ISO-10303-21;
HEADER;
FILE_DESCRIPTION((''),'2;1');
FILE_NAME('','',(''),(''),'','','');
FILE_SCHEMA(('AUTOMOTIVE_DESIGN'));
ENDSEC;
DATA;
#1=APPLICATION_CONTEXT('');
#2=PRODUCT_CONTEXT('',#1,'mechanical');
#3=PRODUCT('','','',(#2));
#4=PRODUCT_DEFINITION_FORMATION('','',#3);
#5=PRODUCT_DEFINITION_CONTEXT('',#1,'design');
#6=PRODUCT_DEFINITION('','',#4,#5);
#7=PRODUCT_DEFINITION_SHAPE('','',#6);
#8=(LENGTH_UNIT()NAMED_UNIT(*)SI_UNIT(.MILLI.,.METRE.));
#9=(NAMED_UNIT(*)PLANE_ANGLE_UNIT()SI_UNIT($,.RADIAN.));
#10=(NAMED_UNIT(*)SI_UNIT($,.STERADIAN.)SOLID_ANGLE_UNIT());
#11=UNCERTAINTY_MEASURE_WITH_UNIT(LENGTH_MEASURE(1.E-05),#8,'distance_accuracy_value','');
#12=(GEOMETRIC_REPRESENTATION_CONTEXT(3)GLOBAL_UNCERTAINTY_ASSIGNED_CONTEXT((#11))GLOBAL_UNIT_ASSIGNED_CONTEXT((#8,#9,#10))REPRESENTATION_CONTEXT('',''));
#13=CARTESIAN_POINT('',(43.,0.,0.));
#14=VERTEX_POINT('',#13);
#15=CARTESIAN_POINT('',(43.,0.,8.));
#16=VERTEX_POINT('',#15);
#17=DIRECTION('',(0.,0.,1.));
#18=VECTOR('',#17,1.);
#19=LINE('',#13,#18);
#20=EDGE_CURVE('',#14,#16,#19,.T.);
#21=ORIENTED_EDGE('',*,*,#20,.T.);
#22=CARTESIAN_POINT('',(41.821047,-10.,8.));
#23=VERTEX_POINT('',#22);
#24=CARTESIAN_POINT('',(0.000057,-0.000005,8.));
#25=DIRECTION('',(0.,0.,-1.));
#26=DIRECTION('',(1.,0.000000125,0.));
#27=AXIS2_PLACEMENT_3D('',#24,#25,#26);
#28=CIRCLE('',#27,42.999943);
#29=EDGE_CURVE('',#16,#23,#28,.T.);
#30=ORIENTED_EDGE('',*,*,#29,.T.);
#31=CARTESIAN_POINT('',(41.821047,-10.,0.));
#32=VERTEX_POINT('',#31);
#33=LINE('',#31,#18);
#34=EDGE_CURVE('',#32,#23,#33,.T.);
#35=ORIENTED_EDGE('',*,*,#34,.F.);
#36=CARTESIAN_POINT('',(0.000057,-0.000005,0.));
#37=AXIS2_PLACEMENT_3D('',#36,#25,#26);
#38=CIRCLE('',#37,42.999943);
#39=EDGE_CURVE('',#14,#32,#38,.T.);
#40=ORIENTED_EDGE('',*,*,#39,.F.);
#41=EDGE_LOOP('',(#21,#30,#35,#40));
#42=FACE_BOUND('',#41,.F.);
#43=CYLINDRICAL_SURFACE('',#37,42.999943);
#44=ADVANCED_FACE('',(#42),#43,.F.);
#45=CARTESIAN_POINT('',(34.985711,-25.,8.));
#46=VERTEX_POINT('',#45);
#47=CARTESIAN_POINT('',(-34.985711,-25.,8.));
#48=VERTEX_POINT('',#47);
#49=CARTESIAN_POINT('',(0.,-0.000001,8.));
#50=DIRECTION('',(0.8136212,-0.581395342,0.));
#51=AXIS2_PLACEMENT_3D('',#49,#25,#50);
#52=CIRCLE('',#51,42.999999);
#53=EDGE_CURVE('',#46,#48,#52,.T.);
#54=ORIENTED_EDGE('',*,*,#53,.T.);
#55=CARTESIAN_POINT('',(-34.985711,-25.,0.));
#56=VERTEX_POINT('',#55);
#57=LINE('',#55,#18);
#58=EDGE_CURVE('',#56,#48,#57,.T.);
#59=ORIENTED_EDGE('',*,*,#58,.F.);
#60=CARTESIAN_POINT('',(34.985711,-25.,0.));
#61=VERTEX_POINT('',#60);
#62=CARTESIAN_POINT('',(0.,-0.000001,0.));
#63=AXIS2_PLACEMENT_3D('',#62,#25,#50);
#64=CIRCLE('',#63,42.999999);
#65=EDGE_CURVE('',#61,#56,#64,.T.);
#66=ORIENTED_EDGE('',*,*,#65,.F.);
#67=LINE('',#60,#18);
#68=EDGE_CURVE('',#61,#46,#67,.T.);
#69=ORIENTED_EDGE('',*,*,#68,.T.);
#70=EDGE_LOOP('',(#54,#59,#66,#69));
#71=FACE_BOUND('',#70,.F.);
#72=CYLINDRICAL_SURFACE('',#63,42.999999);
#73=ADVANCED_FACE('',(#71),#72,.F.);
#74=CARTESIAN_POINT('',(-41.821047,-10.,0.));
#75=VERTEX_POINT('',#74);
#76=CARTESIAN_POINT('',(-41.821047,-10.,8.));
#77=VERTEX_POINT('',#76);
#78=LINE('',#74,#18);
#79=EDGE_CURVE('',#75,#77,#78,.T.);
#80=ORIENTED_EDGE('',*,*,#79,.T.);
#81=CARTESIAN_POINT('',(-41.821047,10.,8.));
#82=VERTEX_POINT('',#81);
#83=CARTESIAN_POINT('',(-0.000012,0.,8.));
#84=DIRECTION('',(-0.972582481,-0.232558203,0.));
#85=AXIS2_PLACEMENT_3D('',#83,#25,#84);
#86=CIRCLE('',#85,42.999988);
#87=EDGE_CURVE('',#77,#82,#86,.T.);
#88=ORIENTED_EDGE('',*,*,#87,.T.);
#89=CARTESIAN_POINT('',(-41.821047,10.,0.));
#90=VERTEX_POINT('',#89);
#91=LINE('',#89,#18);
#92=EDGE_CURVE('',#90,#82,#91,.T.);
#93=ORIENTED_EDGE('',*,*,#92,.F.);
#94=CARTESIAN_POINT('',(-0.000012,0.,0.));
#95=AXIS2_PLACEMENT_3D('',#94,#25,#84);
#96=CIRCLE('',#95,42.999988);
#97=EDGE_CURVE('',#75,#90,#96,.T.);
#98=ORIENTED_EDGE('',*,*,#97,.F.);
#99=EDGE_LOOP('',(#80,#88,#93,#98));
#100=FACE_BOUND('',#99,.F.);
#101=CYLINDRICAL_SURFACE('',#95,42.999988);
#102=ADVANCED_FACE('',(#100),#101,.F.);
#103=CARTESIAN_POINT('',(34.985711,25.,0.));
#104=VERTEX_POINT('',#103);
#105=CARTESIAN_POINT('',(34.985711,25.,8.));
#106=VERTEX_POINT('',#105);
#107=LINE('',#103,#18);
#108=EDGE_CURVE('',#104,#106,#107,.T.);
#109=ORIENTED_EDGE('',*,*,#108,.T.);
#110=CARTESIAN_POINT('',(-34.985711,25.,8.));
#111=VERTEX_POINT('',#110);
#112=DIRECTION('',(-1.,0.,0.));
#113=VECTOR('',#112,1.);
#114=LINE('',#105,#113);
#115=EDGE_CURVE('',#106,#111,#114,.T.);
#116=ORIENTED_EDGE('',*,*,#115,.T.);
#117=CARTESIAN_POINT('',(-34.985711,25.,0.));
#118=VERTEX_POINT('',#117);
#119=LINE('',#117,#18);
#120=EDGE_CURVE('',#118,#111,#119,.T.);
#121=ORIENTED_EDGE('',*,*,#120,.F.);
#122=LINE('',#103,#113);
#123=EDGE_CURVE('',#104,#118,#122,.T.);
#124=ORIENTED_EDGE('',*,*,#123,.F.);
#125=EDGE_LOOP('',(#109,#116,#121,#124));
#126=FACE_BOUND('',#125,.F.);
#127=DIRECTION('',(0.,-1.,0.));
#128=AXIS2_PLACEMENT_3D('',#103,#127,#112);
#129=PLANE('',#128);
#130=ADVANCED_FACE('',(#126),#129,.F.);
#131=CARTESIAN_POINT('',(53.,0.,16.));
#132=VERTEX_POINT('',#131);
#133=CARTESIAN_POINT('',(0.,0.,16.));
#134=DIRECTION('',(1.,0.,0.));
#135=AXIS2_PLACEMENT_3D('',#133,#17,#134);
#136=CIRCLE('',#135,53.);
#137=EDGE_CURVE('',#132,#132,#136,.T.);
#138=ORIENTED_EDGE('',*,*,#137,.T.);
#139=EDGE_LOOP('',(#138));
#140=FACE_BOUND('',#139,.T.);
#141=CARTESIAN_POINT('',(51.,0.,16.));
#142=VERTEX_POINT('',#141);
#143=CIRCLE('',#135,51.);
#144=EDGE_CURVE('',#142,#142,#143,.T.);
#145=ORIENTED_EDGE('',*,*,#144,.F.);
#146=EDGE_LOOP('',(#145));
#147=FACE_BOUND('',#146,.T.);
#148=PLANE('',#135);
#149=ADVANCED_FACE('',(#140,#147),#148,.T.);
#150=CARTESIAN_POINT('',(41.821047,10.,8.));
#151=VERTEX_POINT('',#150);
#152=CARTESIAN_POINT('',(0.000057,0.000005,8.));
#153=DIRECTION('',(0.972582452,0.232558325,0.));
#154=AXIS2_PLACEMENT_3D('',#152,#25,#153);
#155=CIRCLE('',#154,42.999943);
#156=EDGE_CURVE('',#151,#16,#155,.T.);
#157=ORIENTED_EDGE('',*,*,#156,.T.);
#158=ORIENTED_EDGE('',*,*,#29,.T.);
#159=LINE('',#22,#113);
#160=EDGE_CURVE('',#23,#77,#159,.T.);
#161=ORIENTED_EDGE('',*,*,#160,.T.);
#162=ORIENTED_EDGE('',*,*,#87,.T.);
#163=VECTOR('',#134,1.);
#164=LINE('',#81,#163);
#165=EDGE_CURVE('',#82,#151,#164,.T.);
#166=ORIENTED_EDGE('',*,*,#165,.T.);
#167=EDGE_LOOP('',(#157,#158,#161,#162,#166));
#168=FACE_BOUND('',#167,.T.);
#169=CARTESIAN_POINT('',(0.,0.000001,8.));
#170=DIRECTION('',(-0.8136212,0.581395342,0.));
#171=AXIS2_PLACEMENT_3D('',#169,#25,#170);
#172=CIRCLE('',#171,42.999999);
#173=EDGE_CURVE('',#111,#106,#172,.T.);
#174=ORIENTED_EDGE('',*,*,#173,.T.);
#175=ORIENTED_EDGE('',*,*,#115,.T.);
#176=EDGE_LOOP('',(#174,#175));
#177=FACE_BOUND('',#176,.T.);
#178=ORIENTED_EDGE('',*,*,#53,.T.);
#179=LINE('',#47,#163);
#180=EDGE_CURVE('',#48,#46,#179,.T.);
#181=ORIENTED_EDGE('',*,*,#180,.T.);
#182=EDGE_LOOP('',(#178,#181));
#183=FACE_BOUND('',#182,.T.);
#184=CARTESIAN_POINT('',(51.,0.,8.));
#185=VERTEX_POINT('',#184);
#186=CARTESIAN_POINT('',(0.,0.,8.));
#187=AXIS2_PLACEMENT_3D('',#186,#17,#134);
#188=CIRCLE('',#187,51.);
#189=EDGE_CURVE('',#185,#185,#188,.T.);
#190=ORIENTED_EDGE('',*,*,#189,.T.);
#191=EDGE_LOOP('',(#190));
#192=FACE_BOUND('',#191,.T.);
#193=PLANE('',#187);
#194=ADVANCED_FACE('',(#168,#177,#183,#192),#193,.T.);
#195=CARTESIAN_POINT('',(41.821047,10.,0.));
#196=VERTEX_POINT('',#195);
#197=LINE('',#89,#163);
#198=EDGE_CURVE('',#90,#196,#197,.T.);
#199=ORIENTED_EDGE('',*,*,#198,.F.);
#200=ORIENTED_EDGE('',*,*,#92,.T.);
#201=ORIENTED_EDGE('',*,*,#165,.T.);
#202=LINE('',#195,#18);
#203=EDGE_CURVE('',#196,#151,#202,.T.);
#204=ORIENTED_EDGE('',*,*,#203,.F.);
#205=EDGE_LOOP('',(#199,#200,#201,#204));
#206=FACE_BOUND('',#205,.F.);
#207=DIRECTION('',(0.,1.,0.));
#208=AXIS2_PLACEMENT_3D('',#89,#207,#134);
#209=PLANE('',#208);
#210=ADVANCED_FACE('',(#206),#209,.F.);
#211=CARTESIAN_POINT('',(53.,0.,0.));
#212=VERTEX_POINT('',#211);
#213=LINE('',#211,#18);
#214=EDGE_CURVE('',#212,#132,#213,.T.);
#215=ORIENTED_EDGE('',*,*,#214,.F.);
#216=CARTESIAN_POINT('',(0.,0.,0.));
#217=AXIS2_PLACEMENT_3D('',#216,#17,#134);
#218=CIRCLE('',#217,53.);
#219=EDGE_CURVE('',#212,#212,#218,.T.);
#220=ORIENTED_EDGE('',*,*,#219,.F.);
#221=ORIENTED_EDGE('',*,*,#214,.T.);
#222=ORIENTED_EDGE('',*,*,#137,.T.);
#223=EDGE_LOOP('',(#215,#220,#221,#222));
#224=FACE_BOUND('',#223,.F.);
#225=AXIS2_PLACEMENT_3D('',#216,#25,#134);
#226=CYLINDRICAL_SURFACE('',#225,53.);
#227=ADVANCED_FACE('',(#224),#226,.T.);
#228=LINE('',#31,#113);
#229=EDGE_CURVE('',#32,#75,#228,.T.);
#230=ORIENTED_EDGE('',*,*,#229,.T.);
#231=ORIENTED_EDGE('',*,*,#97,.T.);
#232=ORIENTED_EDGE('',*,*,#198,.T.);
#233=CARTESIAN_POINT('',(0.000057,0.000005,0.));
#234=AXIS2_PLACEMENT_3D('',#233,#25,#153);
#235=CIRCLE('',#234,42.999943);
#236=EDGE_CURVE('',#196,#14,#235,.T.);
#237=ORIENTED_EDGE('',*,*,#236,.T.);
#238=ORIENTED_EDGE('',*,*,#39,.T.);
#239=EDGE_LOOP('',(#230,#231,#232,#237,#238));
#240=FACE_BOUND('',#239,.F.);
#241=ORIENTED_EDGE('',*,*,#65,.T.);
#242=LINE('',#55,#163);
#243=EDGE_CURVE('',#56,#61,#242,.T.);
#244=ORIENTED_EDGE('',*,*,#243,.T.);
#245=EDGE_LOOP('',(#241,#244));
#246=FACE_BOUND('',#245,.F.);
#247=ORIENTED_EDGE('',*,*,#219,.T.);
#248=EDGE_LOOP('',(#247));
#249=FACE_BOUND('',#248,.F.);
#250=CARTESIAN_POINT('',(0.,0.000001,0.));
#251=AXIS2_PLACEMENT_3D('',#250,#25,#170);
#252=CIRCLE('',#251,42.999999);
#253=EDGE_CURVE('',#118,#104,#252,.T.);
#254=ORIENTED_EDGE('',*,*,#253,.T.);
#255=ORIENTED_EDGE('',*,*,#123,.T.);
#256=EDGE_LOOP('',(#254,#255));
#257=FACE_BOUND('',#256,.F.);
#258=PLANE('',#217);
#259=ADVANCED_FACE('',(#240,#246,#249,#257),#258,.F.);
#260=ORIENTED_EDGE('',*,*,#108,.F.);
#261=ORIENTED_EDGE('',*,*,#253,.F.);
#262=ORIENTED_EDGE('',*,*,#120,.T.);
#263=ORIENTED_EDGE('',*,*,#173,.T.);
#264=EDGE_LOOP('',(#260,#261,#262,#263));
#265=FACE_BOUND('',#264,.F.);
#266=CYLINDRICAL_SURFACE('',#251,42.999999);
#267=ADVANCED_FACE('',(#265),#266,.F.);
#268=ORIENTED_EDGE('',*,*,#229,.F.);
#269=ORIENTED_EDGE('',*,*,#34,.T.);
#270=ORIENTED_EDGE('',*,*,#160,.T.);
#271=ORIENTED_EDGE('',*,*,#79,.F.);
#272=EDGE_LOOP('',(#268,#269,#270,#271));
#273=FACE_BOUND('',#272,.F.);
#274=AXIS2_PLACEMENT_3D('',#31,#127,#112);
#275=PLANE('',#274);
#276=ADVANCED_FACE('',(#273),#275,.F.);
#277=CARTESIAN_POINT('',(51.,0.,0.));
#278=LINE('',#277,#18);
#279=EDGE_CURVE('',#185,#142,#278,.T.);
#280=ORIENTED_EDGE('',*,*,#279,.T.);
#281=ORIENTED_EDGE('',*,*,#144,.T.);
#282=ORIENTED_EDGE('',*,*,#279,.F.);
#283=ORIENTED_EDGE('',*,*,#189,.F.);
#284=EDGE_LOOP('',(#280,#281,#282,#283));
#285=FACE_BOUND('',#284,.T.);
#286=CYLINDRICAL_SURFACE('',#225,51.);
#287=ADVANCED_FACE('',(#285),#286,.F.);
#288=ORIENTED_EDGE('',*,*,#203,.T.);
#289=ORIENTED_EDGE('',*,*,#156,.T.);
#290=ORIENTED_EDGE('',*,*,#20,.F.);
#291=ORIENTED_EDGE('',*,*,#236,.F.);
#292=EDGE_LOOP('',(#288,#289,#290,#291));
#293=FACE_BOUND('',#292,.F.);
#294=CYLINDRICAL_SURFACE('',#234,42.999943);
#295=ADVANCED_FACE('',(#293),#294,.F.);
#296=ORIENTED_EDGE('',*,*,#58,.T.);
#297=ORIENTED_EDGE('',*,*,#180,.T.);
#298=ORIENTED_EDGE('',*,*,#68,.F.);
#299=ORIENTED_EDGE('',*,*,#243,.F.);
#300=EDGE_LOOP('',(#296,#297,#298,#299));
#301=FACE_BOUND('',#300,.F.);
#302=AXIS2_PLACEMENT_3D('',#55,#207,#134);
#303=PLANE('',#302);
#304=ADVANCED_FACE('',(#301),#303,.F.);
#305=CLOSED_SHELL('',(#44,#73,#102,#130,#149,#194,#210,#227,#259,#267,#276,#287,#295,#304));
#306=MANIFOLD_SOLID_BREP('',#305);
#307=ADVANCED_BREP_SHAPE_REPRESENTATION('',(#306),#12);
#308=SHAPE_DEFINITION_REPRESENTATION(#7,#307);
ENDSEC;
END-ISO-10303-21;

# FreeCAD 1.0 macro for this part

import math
import FreeCAD as App
import Part
import Sketcher

doc = App.newDocument("Part")
body = doc.addObject("PartDesign::Body", "Body")

sketch1 = doc.addObject("Sketcher::SketchObject", "Sketch")
body.addObject(sketch1)
sketch1.AttachmentSupport = (doc.XY_Plane, [""])
sketch1.MapMode = "FlatFace"
sketch1.addGeometry([
    Part.Circle(App.Vector(0, 0, 0), App.Vector(0, 0, 1), 51),
    Part.ArcOfCircle(Part.Circle(App.Vector(0, 0.000001, 0), App.Vector(0, 0, 1), 42.999999), math.radians(35.548744), math.radians(144.451256)),
    Part.LineSegment(App.Vector(34.985711, 25, 0), App.Vector(-34.985711, 25, 0)),
    Part.ArcOfCircle(Part.Circle(App.Vector(-0.000012, 0, 0), App.Vector(0, 0, 1), 42.999988), math.radians(166.552269), math.radians(193.447731)),
    Part.LineSegment(App.Vector(-41.821047, 10, 0), App.Vector(41.821047, 10, 0)),
    Part.ArcOfCircle(Part.Circle(App.Vector(0.000057, 0.000005, 0), App.Vector(0, 0, 1), 42.999943), math.radians(-0.000007), math.radians(13.447738)),
    Part.ArcOfCircle(Part.Circle(App.Vector(0.000057, -0.000005, 0), App.Vector(0, 0, 1), 42.999943), math.radians(-13.447738), math.radians(0.000007)),
    Part.LineSegment(App.Vector(41.821047, -10, 0), App.Vector(-41.821047, -10, 0)),
    Part.ArcOfCircle(Part.Circle(App.Vector(0, -0.000001, 0), App.Vector(0, 0, 1), 42.999999), math.radians(-144.451256), math.radians(-35.548744)),
    Part.LineSegment(App.Vector(-34.985711, -25, 0), App.Vector(34.985711, -25, 0)),
], False)
sketch1.addConstraint([
    Sketcher.Constraint("Coincident", 1, 1, 2, 1),
    Sketcher.Constraint("Coincident", 2, 2, 1, 2),
    Sketcher.Constraint("Coincident", 3, 1, 4, 1),
    Sketcher.Constraint("Coincident", 4, 2, 5, 2),
    Sketcher.Constraint("Tangent", 5, 1, 6, 2),
    Sketcher.Constraint("Coincident", 6, 1, 7, 1),
    Sketcher.Constraint("Coincident", 7, 2, 3, 2),
    Sketcher.Constraint("Coincident", 8, 1, 9, 1),
    Sketcher.Constraint("Coincident", 9, 2, 8, 2),
    Sketcher.Constraint("Horizontal", 2),
    Sketcher.Constraint("Horizontal", 4),
    Sketcher.Constraint("Horizontal", 7),
    Sketcher.Constraint("Horizontal", 9),
    Sketcher.Constraint("Coincident", 0, 3, -1, 1),
    Sketcher.Constraint("Coincident", 1, 3, -1, 1),
    Sketcher.Constraint("Coincident", 8, 3, -1, 1),
    Sketcher.Constraint("Equal", 5, 6),
    Sketcher.Constraint("Equal", 1, 8),
    Sketcher.Constraint("Symmetric", 3, 1, 6, 1, -1, 1),
    Sketcher.Constraint("PointOnObject", 3, 3, -1),
    Sketcher.Constraint("PointOnObject", 5, 1, -1),
    Sketcher.Constraint("Vertical", 4, 2, 6, 1),
    Sketcher.Constraint("Vertical", 2, 2, 8, 1),
    Sketcher.Constraint("Diameter", 0, 102.0),
    Sketcher.Constraint("Radius", 1, 42.999999),
    Sketcher.Constraint("DistanceY", -1, 1, 1, 1, 25.0),
    Sketcher.Constraint("DistanceY", -1, 1, 3, 1, 10.0),
    Sketcher.Constraint("DistanceX", -1, 1, 5, 1, 43.0),
    Sketcher.Constraint("Radius", 3, 42.999988),
    Sketcher.Constraint("Radius", 5, 42.999943),
])
pad1 = doc.addObject("PartDesign::Pad", "Pad")
body.addObject(pad1)
pad1.Profile = sketch1
pad1.Length = 8

sketch2 = doc.addObject("Sketcher::SketchObject", "Sketch001")
body.addObject(sketch2)
sketch2.AttachmentSupport = (doc.XY_Plane, [""])
sketch2.MapMode = "FlatFace"
sketch2.addGeometry([
    Part.Circle(App.Vector(0, 0, 0), App.Vector(0, 0, 1), 53),
    Part.Circle(App.Vector(0, 0, 0), App.Vector(0, 0, 1), 51),
], False)
sketch2.addConstraint([
    Sketcher.Constraint("Coincident", 0, 3, -1, 1),
    Sketcher.Constraint("Coincident", 1, 3, -1, 1),
    Sketcher.Constraint("Diameter", 0, 106.0),
    Sketcher.Constraint("Diameter", 1, 102.0),
])
pad2 = doc.addObject("PartDesign::Pad", "Pad001")
body.addObject(pad2)
pad2.Profile = sketch2
pad2.Length = 16

doc.recompute()
